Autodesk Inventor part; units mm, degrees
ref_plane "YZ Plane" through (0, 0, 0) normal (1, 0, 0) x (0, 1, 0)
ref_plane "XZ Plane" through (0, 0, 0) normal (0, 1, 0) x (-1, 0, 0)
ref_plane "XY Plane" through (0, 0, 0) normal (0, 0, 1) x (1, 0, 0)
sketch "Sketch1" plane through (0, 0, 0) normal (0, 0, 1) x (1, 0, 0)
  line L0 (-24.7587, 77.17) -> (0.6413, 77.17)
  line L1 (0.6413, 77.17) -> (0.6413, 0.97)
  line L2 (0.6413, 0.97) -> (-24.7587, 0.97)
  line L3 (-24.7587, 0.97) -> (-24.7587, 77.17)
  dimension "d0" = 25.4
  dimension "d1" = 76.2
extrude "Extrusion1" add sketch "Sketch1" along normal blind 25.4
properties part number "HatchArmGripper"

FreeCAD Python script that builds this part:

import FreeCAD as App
import Part
import Sketcher
from FreeCAD import Vector
Q = App.Units.Quantity

doc = App.newDocument("Part")
params = doc.addObject("Spreadsheet::Sheet", "Params")
for row, (alias, value) in enumerate([
    ("sketch1_width", "1 in"),
    ("sketch1_height", "3 in"),
    ("pad1_length", "1 in"),
], start=1):
    params.set(f"A{row}", alias)
    params.set(f"B{row}", "=" + value)
    params.setAlias(f"B{row}", alias)

body = doc.addObject("PartDesign::Body", "Body")

# Sketch on XY plane
sketch1 = body.newObject("Sketcher::SketchObject", "Sketch")
sketch1.AttachmentSupport = (doc.getObject("XY_Plane"), [""])
sketch1.MapMode = "FlatFace"
sketch1.addGeometry(Part.LineSegment(Vector(0.6413, 77.17, 0), Vector(-24.7587, 77.17, 0)), False)
sketch1.addGeometry(Part.LineSegment(Vector(-24.7587, 77.17, 0), Vector(-24.7587, 0.97, 0)), False)
sketch1.addGeometry(Part.LineSegment(Vector(-24.7587, 0.97, 0), Vector(0.6413, 0.97, 0)), False)
sketch1.addGeometry(Part.LineSegment(Vector(0.6413, 0.97, 0), Vector(0.6413, 77.17, 0)), False)
sketch1.addConstraint(Sketcher.Constraint("Coincident", 0, 2, 1, 1))
sketch1.addConstraint(Sketcher.Constraint("Coincident", 1, 2, 2, 1))
sketch1.addConstraint(Sketcher.Constraint("Coincident", 2, 2, 3, 1))
sketch1.addConstraint(Sketcher.Constraint("Coincident", 3, 2, 0, 1))
sketch1.addConstraint(Sketcher.Constraint("Horizontal", 0))
sketch1.addConstraint(Sketcher.Constraint("Vertical", 1))
sketch1.addConstraint(Sketcher.Constraint("Horizontal", 2))
sketch1.addConstraint(Sketcher.Constraint("Vertical", 3))
sketch1.addConstraint(Sketcher.Constraint("DistanceX", 0, 2, 0, 1, Q("1 in")))
sketch1.addConstraint(Sketcher.Constraint("DistanceY", 1, 2, 1, 1, Q("3 in")))
sketch1.addConstraint(Sketcher.Constraint("DistanceY", -1, 1, 0, 2, Q("3.0382 in")))
sketch1.addConstraint(Sketcher.Constraint("DistanceX", 0, 2, -1, 1, 24.7587))
sketch1.setExpression("Constraints[8]", "Params.sketch1_width")
sketch1.setExpression("Constraints[9]", "Params.sketch1_height")
pad1 = body.newObject("PartDesign::Pad", "Pad")
pad1.Profile = sketch1
pad1.setExpression("Length", "Params.pad1_length")

doc.recompute()
